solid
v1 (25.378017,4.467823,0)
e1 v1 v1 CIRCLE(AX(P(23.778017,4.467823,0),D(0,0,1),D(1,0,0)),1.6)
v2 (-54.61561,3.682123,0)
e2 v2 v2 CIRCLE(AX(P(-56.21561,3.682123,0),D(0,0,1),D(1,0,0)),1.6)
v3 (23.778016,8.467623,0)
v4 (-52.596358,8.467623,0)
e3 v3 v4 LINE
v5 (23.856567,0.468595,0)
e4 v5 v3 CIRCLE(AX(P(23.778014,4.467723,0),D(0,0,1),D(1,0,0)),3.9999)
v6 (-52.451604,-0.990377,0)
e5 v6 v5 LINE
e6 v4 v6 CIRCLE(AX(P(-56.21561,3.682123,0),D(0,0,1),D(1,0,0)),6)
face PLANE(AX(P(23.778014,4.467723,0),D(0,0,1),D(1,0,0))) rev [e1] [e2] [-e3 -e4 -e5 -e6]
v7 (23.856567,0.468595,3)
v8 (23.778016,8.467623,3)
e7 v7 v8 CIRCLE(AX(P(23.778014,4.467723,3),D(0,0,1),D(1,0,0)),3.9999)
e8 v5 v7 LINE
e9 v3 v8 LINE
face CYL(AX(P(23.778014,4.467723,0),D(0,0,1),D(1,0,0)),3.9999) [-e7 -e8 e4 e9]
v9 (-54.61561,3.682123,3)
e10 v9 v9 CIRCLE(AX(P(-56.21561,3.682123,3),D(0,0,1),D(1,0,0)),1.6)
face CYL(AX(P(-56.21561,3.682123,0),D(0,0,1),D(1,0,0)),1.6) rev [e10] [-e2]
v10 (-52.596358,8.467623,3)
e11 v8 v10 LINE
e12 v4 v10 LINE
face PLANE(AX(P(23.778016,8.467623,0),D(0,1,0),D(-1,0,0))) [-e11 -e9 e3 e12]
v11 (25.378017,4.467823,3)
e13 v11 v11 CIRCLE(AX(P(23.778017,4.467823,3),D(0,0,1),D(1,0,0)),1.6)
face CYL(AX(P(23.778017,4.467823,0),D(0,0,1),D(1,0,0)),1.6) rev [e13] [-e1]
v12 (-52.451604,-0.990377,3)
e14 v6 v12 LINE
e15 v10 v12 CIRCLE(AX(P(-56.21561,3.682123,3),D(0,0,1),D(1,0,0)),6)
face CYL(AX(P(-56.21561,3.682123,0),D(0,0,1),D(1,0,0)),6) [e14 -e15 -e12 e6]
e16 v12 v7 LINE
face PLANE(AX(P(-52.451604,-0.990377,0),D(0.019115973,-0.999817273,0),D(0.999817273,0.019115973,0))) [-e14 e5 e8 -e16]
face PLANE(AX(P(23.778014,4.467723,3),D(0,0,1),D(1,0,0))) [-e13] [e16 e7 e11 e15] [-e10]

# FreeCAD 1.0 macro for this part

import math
import FreeCAD as App
import Part
import Sketcher
from FreeCAD import Vector
Q = App.Units.Quantity

doc = App.newDocument("Part")
params = doc.addObject("Spreadsheet::Sheet", "Params")
for row, (alias, value) in enumerate([
    ("sketch1_radius", "6 mm"),
    ("pad1_length", "3 mm"),
    ("sketch2_diameter", "2.7 mm"),
    ("pocket1_length", "2.444444 mm"),
    ("sketch3_diameter", "2.7 mm"),
    ("pocket2_length", "0.555556 mm"),
    ("sketch4_diameter", "2.7 mm"),
    ("hole_diameter", "2.7 mm"),
    ("sketch5_diameter", "3.2 mm"),
], start=1):
    params.set(f"A{row}", alias)
    params.set(f"B{row}", "=" + value)
    params.setAlias(f"B{row}", alias)

body = doc.addObject("PartDesign::Body", "Body")

# Sketch on XY plane
sketch1 = body.newObject("Sketcher::SketchObject", "Sketch")
sketch1.AttachmentSupport = (doc.getObject("XY_Plane"), [""])
sketch1.MapMode = "FlatFace"
sketch1.AttachmentOffset = App.Placement(Vector(0, 0, 3), App.Rotation())
sketch1.addGeometry(Part.LineSegment(Vector(23.778016, 8.467623, 0), Vector(-52.596358, 8.467623, 0)), False)
sketch1.addGeometry(Part.ArcOfCircle(Part.Circle(Vector(-56.21561, 3.682123, 0), Vector(0, 0, 1), 6), math.radians(52.89995), math.radians(308.853737)), False)
sketch1.addGeometry(Part.LineSegment(Vector(-52.451604, -0.990377, 0), Vector(23.856567, 0.468595, 0)), False)
sketch1.addGeometry(Part.ArcOfCircle(Part.Circle(Vector(23.778014, 4.467723, 0), Vector(0, 0, 1), 3.9999), math.radians(-88.874717), math.radians(89.999972)), False)
sketch1.addConstraint(Sketcher.Constraint("Coincident", 0, 2, 1, 1))
sketch1.addConstraint(Sketcher.Constraint("Coincident", 1, 2, 2, 1))
sketch1.addConstraint(Sketcher.Constraint("Coincident", 2, 2, 3, 1))
sketch1.addConstraint(Sketcher.Constraint("Tangent", 3, 2, 0, 1))
sketch1.addConstraint(Sketcher.Constraint("Horizontal", 0))
sketch1.addConstraint(Sketcher.Constraint("Radius", 1, Q("6 mm")))
sketch1.addConstraint(Sketcher.Constraint("Radius", 3, Q("3.9999 mm")))
sketch1.addConstraint(Sketcher.Constraint("DistanceY", 1, 2, 0, 2, Q("9.458 mm")))
sketch1.addConstraint(Sketcher.Constraint("DistanceY", 1, 3, 3, 3, Q("0.7856 mm")))
sketch1.addConstraint(Sketcher.Constraint("DistanceX", 0, 2, 0, 1, Q("76.374375 mm")))
sketch1.addConstraint(Sketcher.Constraint("DistanceX", 1, 3, -1, 1, Q("56.21561 mm")))
sketch1.addConstraint(Sketcher.Constraint("DistanceY", 2, 2, 3, 3, Q("3.999129 mm")))
sketch1.addConstraint(Sketcher.Constraint("DistanceY", -1, 1, 1, 3, Q("3.682123 mm")))
sketch1.setExpression("Constraints[5]", "Params.sketch1_radius")
pad1 = body.newObject("PartDesign::Pad", "Pad")
pad1.Profile = sketch1
pad1.setExpression("Length", "Params.pad1_length")
pad1.Reversed = True

# Sketch on XY plane
sketch2 = body.newObject("Sketcher::SketchObject", "Sketch001")
sketch2.AttachmentSupport = (doc.getObject("XY_Plane"), [""])
sketch2.MapMode = "FlatFace"
sketch2.AttachmentOffset = App.Placement(Vector(0, 0, 3), App.Rotation())
sketch2.addGeometry(Part.Circle(Vector(23.778017, 4.467623, 0), Vector(0, 0, 1), 1.35), False)
sketch2.addConstraint(Sketcher.Constraint("Diameter", 0, Q("2.7 mm")))
sketch2.addConstraint(Sketcher.Constraint("DistanceX", -1, 1, 0, 3, Q("23.778017 mm")))
sketch2.addConstraint(Sketcher.Constraint("DistanceY", -1, 1, 0, 3, Q("4.467623 mm")))
sketch2.setExpression("Constraints[0]", "Params.sketch2_diameter")
pocket1 = body.newObject("PartDesign::Pocket", "Pocket")
pocket1.Profile = sketch2
pocket1.setExpression("Length", "Params.pocket1_length")

# Sketch on XY plane
sketch3 = body.newObject("Sketcher::SketchObject", "Sketch002")
sketch3.AttachmentSupport = (doc.getObject("XY_Plane"), [""])
sketch3.MapMode = "FlatFace"
sketch3.addGeometry(Part.Circle(Vector(23.778017, 4.467823, 0), Vector(0, 0, 1), 1.35), False)
sketch3.addConstraint(Sketcher.Constraint("Diameter", 0, Q("2.7 mm")))
sketch3.addConstraint(Sketcher.Constraint("DistanceX", -1, 1, 0, 3, Q("23.778017 mm")))
sketch3.addConstraint(Sketcher.Constraint("DistanceY", -1, 1, 0, 3, Q("4.467823 mm")))
sketch3.setExpression("Constraints[0]", "Params.sketch3_diameter")
pocket2 = body.newObject("PartDesign::Pocket", "Pocket001")
pocket2.Profile = sketch3
pocket2.setExpression("Length", "Params.pocket2_length")
pocket2.Reversed = True

# Sketch on XY plane
sketch4 = body.newObject("Sketcher::SketchObject", "Sketch003")
sketch4.AttachmentSupport = (doc.getObject("XY_Plane"), [""])
sketch4.MapMode = "FlatFace"
sketch4.AttachmentOffset = App.Placement(Vector(0, 0, 3), App.Rotation())
sketch4.addGeometry(Part.Circle(Vector(-56.21561, 3.682123, 0), Vector(0, 0, 1), 1.35), False)
sketch4.addConstraint(Sketcher.Constraint("Diameter", 0, Q("2.7 mm")))
sketch4.addConstraint(Sketcher.Constraint("DistanceX", 0, 3, -1, 1, Q("56.21561 mm")))
sketch4.addConstraint(Sketcher.Constraint("DistanceY", -1, 1, 0, 3, Q("3.682123 mm")))
sketch4.setExpression("Constraints[0]", "Params.sketch4_diameter")
doc.recompute()
hole = body.newObject("PartDesign::Hole", "Hole")
hole.Profile = sketch4
hole.ThreadType = "None"
hole.setExpression("Diameter", "Params.hole_diameter")
hole.DepthType = "ThroughAll"

# Sketch on XY plane
sketch5 = body.newObject("Sketcher::SketchObject", "Sketch004")
sketch5.AttachmentSupport = (doc.getObject("XY_Plane"), [""])
sketch5.MapMode = "FlatFace"
sketch5.AttachmentOffset = App.Placement(Vector(0, 0, 3), App.Rotation())
sketch5.addGeometry(Part.Circle(Vector(-56.21561, 3.682123, 0), Vector(0, 0, 1), 1.6), False)
sketch5.addGeometry(Part.Circle(Vector(23.778017, 4.467823, 0), Vector(0, 0, 1), 1.6), False)
sketch5.addConstraint(Sketcher.Constraint("Equal", 0, 1))
sketch5.addConstraint(Sketcher.Constraint("Diameter", 0, Q("3.2 mm")))
sketch5.addConstraint(Sketcher.Constraint("DistanceY", 0, 3, 1, 3, Q("0.7857 mm")))
sketch5.addConstraint(Sketcher.Constraint("DistanceX", 0, 3, -1, 1, Q("56.21561 mm")))
sketch5.addConstraint(Sketcher.Constraint("DistanceY", -1, 1, 0, 3, Q("3.682123 mm")))
sketch5.addConstraint(Sketcher.Constraint("DistanceX", -1, 1, 1, 3, Q("23.778017 mm")))
sketch5.setExpression("Constraints[1]", "Params.sketch5_diameter")
pocket3 = body.newObject("PartDesign::Pocket", "Pocket002")
pocket3.Profile = sketch5
pocket3.Type = "ThroughAll"

doc.recompute()
